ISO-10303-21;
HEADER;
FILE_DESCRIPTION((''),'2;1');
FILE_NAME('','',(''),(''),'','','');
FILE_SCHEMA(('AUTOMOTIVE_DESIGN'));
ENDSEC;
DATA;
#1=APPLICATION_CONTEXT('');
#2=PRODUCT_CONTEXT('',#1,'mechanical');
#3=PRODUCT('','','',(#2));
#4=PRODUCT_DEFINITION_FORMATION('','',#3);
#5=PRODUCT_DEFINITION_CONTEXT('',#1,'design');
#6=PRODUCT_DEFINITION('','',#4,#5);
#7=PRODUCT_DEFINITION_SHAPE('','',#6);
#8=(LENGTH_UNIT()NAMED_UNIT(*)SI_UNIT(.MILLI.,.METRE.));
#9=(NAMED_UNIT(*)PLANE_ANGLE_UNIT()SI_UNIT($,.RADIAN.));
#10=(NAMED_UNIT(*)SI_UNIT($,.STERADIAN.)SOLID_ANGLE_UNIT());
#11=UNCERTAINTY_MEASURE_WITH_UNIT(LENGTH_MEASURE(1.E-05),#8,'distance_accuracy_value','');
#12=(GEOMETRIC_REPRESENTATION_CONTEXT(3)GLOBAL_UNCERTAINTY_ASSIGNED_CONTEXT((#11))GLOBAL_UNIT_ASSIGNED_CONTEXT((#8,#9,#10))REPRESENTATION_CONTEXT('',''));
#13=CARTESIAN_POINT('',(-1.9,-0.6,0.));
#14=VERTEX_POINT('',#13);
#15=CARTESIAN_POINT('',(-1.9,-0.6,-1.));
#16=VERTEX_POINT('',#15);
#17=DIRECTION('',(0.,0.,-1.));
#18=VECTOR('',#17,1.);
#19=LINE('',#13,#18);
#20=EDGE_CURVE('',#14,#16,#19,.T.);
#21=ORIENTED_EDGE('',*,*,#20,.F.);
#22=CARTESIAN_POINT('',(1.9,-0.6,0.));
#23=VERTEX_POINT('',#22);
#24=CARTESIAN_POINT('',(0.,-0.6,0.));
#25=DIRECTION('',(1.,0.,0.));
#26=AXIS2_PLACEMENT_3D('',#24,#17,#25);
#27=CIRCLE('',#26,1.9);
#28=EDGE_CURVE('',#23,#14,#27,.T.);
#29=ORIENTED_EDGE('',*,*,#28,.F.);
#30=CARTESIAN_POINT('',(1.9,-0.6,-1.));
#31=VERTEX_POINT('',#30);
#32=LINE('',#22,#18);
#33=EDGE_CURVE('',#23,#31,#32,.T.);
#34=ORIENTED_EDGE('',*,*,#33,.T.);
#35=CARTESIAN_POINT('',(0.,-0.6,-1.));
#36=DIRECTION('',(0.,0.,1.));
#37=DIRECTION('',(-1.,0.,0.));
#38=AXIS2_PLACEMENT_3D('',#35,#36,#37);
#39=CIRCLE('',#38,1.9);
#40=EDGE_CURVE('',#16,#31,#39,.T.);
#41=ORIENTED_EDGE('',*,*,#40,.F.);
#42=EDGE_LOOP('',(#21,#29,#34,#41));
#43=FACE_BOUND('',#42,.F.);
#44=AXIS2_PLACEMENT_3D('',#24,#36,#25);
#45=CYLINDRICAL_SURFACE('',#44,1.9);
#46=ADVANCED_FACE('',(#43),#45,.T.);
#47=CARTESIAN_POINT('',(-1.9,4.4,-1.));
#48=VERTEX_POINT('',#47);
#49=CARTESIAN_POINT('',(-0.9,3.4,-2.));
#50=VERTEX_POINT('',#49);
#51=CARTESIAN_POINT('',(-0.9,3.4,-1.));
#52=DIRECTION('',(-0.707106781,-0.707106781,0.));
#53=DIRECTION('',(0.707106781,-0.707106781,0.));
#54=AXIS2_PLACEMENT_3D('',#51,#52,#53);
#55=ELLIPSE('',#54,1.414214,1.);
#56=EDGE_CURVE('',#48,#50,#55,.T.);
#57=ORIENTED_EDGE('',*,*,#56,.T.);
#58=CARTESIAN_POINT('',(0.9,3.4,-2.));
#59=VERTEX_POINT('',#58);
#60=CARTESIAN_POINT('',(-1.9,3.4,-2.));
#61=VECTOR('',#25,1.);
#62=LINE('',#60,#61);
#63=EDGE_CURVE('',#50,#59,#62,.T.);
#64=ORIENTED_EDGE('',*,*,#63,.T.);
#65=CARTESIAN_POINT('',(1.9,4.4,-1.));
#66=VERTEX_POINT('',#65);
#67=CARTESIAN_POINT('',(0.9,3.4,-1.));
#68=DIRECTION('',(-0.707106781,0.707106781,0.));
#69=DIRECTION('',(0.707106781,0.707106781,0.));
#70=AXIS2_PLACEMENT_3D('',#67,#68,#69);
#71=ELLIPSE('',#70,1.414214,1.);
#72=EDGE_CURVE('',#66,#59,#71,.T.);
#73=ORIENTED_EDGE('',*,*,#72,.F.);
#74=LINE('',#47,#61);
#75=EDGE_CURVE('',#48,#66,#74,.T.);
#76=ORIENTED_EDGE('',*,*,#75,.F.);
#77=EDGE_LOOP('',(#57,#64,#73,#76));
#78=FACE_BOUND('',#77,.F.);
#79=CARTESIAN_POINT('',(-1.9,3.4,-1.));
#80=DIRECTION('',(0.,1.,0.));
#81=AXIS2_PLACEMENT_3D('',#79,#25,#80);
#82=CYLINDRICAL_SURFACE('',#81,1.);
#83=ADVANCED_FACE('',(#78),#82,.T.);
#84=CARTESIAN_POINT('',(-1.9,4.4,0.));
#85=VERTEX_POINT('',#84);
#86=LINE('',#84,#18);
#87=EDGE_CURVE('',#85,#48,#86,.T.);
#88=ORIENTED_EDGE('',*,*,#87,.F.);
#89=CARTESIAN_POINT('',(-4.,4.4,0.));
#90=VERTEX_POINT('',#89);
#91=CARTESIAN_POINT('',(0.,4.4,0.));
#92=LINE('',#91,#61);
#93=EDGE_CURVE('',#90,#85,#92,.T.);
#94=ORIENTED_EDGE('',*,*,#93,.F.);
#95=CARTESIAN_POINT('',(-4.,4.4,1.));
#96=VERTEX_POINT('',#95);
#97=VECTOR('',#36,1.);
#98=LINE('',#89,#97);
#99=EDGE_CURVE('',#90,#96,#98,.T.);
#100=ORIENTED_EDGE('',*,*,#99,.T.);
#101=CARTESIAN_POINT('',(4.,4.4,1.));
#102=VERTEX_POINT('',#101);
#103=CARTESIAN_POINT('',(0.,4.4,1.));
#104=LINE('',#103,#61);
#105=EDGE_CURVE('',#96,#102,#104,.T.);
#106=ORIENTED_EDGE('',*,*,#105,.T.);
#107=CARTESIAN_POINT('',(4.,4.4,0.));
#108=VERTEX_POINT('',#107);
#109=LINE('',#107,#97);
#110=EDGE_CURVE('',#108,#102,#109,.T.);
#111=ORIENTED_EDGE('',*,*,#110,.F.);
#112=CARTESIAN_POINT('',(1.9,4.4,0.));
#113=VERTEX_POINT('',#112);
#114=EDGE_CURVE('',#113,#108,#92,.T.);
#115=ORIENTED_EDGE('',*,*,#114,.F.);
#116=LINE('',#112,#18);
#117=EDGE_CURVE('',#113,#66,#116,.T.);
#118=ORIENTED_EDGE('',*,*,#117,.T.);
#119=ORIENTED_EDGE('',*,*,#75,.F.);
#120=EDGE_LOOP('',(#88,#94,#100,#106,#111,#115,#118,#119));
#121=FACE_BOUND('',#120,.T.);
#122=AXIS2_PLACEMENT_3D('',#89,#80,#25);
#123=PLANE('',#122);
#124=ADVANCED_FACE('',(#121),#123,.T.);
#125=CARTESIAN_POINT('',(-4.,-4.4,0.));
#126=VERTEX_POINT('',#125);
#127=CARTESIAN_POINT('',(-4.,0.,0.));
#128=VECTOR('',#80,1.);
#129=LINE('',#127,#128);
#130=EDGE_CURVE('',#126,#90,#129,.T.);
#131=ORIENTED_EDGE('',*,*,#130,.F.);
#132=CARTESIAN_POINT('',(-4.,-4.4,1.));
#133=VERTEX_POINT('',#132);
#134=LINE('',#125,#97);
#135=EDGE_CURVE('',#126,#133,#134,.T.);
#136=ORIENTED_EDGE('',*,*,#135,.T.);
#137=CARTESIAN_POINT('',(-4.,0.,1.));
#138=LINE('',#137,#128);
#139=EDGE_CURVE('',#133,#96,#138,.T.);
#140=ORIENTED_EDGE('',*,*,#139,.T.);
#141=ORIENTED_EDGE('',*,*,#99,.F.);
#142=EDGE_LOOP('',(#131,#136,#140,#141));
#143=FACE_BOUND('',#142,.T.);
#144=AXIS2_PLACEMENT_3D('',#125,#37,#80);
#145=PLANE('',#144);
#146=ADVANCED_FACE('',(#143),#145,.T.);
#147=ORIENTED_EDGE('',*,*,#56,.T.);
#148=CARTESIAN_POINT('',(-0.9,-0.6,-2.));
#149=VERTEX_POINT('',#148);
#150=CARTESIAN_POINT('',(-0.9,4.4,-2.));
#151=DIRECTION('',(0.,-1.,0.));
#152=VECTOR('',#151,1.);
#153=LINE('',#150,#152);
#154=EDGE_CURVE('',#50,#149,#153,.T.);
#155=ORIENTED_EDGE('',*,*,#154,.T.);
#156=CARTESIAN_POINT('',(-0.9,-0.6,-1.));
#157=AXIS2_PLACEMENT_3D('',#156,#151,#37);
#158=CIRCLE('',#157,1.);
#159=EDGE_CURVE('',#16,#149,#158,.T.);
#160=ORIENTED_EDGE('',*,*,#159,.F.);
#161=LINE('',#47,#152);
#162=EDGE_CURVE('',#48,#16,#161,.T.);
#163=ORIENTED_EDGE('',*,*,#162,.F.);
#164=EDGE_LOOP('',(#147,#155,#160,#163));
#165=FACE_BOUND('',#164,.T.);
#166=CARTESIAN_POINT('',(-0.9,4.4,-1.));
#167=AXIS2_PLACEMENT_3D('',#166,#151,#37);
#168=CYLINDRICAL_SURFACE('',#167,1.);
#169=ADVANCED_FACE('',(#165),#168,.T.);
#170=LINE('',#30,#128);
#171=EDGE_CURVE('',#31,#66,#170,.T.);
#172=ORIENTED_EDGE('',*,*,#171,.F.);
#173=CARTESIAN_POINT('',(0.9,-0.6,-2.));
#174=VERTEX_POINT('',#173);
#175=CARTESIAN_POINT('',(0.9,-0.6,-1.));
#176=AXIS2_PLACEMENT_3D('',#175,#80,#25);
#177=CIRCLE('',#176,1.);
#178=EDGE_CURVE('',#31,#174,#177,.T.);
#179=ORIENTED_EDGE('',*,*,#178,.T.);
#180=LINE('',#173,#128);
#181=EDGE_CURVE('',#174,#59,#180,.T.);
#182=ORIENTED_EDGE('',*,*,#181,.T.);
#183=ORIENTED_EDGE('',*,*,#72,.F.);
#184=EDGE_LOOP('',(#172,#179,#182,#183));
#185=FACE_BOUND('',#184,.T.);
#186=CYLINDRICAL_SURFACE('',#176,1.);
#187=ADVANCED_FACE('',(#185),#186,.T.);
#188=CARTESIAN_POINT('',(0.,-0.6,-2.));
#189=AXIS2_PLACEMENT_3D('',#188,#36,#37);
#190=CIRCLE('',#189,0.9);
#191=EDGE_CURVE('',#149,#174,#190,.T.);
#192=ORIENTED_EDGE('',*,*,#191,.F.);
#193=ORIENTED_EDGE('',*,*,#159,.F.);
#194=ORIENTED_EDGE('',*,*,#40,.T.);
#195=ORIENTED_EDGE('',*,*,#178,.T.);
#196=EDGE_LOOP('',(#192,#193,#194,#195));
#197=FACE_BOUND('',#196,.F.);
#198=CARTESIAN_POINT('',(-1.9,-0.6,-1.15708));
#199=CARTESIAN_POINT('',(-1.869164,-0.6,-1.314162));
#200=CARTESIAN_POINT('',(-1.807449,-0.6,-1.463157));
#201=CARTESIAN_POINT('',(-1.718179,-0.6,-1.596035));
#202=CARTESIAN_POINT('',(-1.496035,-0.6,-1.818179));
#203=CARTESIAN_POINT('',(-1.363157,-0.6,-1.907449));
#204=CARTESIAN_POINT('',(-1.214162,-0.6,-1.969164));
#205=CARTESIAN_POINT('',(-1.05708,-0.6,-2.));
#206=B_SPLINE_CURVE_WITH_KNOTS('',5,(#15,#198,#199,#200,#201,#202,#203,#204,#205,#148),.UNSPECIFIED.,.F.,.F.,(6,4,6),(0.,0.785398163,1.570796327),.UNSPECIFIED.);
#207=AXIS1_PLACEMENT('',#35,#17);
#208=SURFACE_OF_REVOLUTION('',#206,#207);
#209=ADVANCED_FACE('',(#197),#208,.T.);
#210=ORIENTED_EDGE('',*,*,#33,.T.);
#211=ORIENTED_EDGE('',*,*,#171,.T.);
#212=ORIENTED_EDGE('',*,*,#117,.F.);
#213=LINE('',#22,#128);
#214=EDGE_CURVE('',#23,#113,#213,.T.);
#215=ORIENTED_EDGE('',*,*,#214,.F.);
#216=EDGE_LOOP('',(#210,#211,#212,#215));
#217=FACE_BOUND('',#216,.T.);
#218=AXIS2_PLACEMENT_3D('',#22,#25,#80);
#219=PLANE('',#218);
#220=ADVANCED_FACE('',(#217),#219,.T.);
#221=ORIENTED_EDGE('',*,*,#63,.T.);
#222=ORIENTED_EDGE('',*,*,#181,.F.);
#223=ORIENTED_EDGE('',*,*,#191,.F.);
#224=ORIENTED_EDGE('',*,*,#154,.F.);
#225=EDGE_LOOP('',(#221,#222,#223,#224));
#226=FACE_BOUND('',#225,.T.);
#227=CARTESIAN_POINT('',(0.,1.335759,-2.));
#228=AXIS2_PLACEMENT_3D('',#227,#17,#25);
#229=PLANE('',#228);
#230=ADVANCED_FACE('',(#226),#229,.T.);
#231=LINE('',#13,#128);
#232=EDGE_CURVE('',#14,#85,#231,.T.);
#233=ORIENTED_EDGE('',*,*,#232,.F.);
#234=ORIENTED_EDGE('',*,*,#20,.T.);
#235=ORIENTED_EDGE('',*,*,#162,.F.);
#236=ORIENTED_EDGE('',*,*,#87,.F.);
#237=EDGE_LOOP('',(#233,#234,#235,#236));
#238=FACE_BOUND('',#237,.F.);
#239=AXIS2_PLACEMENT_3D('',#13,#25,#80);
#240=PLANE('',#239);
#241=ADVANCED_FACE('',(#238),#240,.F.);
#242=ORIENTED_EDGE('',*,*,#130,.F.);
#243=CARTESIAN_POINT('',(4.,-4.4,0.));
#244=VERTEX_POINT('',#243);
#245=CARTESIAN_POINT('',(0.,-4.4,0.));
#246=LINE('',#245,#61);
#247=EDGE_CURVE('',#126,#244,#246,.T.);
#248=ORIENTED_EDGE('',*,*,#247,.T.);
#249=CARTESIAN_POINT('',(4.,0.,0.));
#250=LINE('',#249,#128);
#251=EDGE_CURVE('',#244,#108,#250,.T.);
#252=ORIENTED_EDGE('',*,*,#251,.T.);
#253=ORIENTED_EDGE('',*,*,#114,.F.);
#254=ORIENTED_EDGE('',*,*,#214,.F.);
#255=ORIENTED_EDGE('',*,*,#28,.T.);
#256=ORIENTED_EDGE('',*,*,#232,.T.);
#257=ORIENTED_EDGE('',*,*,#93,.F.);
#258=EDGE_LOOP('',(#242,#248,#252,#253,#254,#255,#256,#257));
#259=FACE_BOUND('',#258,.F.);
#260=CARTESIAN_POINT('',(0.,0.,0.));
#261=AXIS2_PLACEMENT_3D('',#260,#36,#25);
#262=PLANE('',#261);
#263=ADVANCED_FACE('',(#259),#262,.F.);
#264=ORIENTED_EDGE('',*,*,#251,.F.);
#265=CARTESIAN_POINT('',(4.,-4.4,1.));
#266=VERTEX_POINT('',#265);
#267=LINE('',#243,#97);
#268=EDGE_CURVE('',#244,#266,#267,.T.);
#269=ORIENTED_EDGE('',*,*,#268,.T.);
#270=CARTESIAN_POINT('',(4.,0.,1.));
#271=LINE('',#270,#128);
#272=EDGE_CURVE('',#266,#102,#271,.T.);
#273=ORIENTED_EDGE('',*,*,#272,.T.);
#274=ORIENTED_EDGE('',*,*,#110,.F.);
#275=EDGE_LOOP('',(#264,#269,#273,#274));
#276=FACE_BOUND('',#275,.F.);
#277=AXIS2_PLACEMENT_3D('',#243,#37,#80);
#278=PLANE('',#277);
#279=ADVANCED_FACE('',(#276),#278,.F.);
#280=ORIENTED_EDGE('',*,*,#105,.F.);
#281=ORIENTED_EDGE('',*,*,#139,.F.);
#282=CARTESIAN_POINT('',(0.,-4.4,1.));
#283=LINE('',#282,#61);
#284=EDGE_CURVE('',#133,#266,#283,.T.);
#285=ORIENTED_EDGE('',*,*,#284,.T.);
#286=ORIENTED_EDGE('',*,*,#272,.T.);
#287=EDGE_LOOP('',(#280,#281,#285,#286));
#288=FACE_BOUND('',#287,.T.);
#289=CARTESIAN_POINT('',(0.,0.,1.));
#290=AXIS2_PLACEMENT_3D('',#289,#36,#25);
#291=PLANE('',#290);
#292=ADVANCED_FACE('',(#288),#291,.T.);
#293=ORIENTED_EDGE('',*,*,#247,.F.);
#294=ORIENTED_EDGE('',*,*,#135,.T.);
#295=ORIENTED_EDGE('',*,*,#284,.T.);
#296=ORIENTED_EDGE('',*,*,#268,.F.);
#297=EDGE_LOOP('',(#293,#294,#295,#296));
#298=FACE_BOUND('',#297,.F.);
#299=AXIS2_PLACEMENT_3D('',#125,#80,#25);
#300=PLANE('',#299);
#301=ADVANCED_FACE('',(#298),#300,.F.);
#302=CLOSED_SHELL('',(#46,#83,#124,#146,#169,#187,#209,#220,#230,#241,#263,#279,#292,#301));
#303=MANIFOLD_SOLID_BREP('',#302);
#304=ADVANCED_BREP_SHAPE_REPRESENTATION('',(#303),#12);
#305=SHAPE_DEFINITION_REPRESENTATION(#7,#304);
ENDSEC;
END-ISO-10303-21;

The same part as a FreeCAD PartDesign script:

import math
import FreeCAD as App
import Part
import Sketcher
from FreeCAD import Vector
Q = App.Units.Quantity


def edges_at(feature, points):
    """Names of the edges that pass closest to the given points."""
    edges = feature.Shape.Edges
    near = lambda p: min(range(len(edges)), key=lambda i: edges[i].distToShape(Part.Vertex(*p))[0])
    return sorted({f"Edge{near(p) + 1}" for p in points})

doc = App.newDocument("Part")
params = doc.addObject("Spreadsheet::Sheet", "Params")
for row, (alias, value) in enumerate([
    ("sketch1_width", "8 mm"),
    ("sketch1_height", "8.8 mm"),
    ("pad1_length", "1 mm"),
    ("sketch2_radius", "1.9 mm"),
    ("sketch2_height", "5 mm"),
    ("pad2_length", "2 mm"),
    ("fillet_radius", "1 mm"),
], start=1):
    params.set(f"A{row}", alias)
    params.set(f"B{row}", "=" + value)
    params.setAlias(f"B{row}", alias)

body = doc.addObject("PartDesign::Body", "Body")

sketch1 = body.newObject("Sketcher::SketchObject", "Sketch")
sketch1.AttachmentSupport = (doc.getObject("XY_Plane"), [""])
sketch1.MapMode = "FlatFace"
sketch1.addGeometry(Part.LineSegment(Vector(-4, 4, 0), Vector(-4, -4, 0)), False)
sketch1.addGeometry(Part.LineSegment(Vector(-4, -4, 0), Vector(4, -4, 0)), False)
sketch1.addGeometry(Part.LineSegment(Vector(4, -4, 0), Vector(4, 4, 0)), False)
sketch1.addGeometry(Part.LineSegment(Vector(4, 4, 0), Vector(-4, 4, 0)), False)
sketch1.addConstraint(Sketcher.Constraint("Coincident", 0, 2, 1, 1))
sketch1.addConstraint(Sketcher.Constraint("Coincident", 1, 2, 2, 1))
sketch1.addConstraint(Sketcher.Constraint("Coincident", 2, 2, 3, 1))
sketch1.addConstraint(Sketcher.Constraint("Coincident", 3, 2, 0, 1))
sketch1.addConstraint(Sketcher.Constraint("Vertical", 0))
sketch1.addConstraint(Sketcher.Constraint("Horizontal", 1))
sketch1.addConstraint(Sketcher.Constraint("Vertical", 2))
sketch1.addConstraint(Sketcher.Constraint("Horizontal", 3))
sketch1.addConstraint(Sketcher.Constraint("Symmetric", 0, 2, 2, 2, -1, 1))
sketch1.addConstraint(Sketcher.Constraint("DistanceX", 1, 1, 1, 2, Q("8 mm")))
sketch1.addConstraint(Sketcher.Constraint("DistanceY", 0, 2, 0, 1, Q("8.8 mm")))
sketch1.setExpression("Constraints[9]", "Params.sketch1_width")
sketch1.setExpression("Constraints[10]", "Params.sketch1_height")
pad1 = body.newObject("PartDesign::Pad", "Pad")
pad1.Profile = sketch1
pad1.setExpression("Length", "Params.pad1_length")

sketch2 = body.newObject("Sketcher::SketchObject", "Sketch001")
sketch2.AttachmentSupport = (doc.getObject("XY_Plane"), [""])
sketch2.MapMode = "FlatFace"
sketch2.addGeometry(Part.ArcOfCircle(Part.Circle(Vector(0, -0.6, 0), Vector(0, 0, 1), 1.9), math.radians(180), math.radians(360)), False)
sketch2.addGeometry(Part.LineSegment(Vector(-1.9, -0.6, 0), Vector(-1.9, 4.4, 0)), False)
sketch2.addGeometry(Part.LineSegment(Vector(-1.9, 4.4, 0), Vector(1.9, 4.4, 0)), False)
sketch2.addGeometry(Part.LineSegment(Vector(1.9, 4.4, 0), Vector(1.9, -0.6, 0)), False)
sketch2.addConstraint(Sketcher.Constraint("Tangent", 0, 1, 1, 1))
sketch2.addConstraint(Sketcher.Constraint("Coincident", 1, 2, 2, 1))
sketch2.addConstraint(Sketcher.Constraint("Coincident", 2, 2, 3, 1))
sketch2.addConstraint(Sketcher.Constraint("Tangent", 3, 2, 0, 2))
sketch2.addConstraint(Sketcher.Constraint("Vertical", 1))
sketch2.addConstraint(Sketcher.Constraint("Horizontal", 2))
sketch2.addConstraint(Sketcher.Constraint("Vertical", 3))
sketch2.addConstraint(Sketcher.Constraint("PointOnObject", 0, 3, -2))
sketch2.addConstraint(Sketcher.Constraint("Radius", 0, Q("1.9 mm")))
sketch2.addConstraint(Sketcher.Constraint("DistanceY", 1, 1, 1, 2, Q("5 mm")))
sketch2.addConstraint(Sketcher.Constraint("DistanceY", 0, 3, -1, 1, Q("0.6 mm")))
sketch2.setExpression("Constraints[8]", "Params.sketch2_radius")
sketch2.setExpression("Constraints[9]", "Params.sketch2_height")
pad2 = body.newObject("PartDesign::Pad", "Pad001")
pad2.Profile = sketch2
pad2.setExpression("Length", "Params.pad2_length")
pad2.Reversed = True
doc.recompute()

fillet = body.newObject("PartDesign::Fillet", "Fillet")
fillet.Base = (pad2, edges_at(pad2, [
    (1.9, 1.9, -2),
    (0, -2.5, -2),
    (-1.9, 1.9, -2),
    (0, 4.4, -2),
]))
fillet.setExpression("Radius", "Params.fillet_radius")

doc.recompute()
